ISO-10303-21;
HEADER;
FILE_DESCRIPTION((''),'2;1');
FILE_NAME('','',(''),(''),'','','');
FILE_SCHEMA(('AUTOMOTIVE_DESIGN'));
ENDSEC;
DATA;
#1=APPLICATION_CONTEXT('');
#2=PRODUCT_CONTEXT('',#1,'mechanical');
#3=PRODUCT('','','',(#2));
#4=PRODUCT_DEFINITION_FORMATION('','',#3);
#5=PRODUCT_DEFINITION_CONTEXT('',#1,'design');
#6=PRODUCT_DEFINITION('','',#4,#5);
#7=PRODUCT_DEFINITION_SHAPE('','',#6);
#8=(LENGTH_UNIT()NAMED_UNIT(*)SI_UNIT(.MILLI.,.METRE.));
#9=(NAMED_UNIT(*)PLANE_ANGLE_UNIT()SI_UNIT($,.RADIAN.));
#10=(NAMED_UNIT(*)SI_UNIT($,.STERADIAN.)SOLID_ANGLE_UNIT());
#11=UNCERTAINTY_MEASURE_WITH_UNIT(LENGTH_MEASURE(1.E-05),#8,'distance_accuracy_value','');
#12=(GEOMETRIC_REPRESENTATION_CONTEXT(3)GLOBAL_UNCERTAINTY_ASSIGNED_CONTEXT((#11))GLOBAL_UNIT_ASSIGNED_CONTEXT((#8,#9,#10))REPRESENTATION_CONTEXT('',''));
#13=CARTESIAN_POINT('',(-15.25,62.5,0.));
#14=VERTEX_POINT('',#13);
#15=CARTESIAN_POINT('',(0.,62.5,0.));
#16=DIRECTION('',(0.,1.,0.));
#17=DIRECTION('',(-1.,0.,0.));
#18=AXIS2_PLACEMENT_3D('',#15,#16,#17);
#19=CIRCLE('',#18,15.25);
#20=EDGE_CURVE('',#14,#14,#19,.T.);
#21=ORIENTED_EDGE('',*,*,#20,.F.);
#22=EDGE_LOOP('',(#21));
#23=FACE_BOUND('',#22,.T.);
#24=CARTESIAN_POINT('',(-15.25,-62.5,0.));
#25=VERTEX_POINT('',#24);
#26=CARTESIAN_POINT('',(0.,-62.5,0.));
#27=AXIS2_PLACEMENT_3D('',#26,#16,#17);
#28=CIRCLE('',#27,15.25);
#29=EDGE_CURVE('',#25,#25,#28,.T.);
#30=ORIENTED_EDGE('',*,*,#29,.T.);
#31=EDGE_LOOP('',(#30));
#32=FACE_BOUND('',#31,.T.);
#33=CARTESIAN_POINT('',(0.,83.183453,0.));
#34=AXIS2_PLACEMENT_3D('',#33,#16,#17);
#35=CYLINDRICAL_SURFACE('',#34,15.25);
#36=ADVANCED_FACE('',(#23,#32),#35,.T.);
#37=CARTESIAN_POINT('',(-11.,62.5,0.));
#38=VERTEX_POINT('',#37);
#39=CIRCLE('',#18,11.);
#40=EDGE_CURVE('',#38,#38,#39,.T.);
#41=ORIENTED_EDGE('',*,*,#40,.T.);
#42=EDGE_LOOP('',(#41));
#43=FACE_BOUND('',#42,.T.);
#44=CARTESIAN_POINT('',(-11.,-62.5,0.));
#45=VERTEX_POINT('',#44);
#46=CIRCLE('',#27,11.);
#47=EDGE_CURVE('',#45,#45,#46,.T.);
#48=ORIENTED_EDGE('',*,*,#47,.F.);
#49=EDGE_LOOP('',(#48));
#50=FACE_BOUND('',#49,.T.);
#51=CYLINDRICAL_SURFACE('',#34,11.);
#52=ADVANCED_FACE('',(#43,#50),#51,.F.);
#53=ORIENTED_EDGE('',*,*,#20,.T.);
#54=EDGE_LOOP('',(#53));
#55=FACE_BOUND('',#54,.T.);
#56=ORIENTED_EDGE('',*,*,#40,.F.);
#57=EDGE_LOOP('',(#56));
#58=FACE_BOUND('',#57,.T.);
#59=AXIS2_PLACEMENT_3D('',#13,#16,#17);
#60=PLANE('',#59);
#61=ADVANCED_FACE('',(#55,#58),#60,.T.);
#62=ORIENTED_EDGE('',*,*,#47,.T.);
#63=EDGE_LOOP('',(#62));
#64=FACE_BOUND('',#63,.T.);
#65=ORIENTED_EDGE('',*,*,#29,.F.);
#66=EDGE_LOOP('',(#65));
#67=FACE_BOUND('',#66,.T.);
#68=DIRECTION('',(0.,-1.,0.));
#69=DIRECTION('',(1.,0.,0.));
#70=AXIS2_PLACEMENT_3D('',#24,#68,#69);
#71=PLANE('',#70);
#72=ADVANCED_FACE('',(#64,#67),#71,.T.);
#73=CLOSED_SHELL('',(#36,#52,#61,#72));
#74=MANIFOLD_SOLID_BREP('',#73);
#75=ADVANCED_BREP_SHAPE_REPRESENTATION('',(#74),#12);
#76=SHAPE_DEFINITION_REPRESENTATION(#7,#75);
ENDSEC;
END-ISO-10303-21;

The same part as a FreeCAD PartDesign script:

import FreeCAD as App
import Part
import Sketcher
from FreeCAD import Vector


def add_polygon(sketch, points):
    """Adds a closed chain of lines whose ends are joined by coincident constraints."""
    first, n = sketch.GeometryCount, len(points)
    for a, b in zip(points, points[1:] + points[:1]):
        sketch.addGeometry(Part.LineSegment(App.Vector(*a, 0), App.Vector(*b, 0)), False)
    for i in range(n):
        sketch.addConstraint(Sketcher.Constraint("Coincident", first + i, 2, first + (i + 1) % n, 1))

doc = App.newDocument("Part")
params = doc.addObject("Spreadsheet::Sheet", "Params")
for row, (alias, value) in enumerate([
    ("sketch1_height", "125 mm"),
    ("sketch1_width", "4.25 mm"),
    ("revolution_angle", "360 deg"),
], start=1):
    params.set(f"A{row}", alias)
    params.set(f"B{row}", "=" + value)
    params.setAlias(f"B{row}", alias)

body = doc.addObject("PartDesign::Body", "Body")

# Sketch on XY plane
sketch1 = body.newObject("Sketcher::SketchObject", "Sketch")
sketch1.AttachmentSupport = (doc.getObject("XY_Plane"), [""])
sketch1.MapMode = "FlatFace"
add_polygon(sketch1, [(-15.2, 62.5), (-15.2, -62.5), (-11, -62.5), (-11, 62.5)])  # lines 0-3
sketch1.addConstraint([
    Sketcher.Constraint("Vertical", 0),
    Sketcher.Constraint("Horizontal", 1),
    Sketcher.Constraint("Vertical", 2),
    Sketcher.Constraint("Horizontal", 3),
    Sketcher.Constraint("DistanceY", 0, 2, 0, 1, 125.0),
    Sketcher.Constraint("DistanceX", 1, 2, -1, 1, 11.0),
    Sketcher.Constraint("DistanceX", 1, 1, 1, 2, 4.25),
    Sketcher.Constraint("DistanceY", 0, 2, -1, 1, 62.5),
])
sketch1.setExpression("Constraints[8]", "Params.sketch1_height")
sketch1.setExpression("Constraints[10]", "Params.sketch1_width")
revolution = body.newObject("PartDesign::Revolution", "Revolution")
revolution.Profile = sketch1
revolution.ReferenceAxis = (sketch1, ["V_Axis"])
revolution.setExpression("Angle", "Params.revolution_angle")

doc.recompute()
